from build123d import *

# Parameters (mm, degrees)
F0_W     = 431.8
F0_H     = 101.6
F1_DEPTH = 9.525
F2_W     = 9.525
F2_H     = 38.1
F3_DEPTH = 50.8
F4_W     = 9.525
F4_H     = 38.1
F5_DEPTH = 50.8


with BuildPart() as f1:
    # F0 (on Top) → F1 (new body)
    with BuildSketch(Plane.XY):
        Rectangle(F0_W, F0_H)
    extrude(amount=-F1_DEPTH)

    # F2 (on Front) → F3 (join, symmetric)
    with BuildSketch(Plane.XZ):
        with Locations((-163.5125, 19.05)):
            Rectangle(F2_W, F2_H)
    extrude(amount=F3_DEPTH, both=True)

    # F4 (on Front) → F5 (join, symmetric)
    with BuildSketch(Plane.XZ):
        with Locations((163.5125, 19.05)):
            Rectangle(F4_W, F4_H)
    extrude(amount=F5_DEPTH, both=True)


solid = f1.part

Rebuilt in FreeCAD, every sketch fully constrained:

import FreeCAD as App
import Part
import Sketcher
from FreeCAD import Vector
Q = App.Units.Quantity


def add_polygon(sketch, points):
    """Adds a closed chain of lines whose ends are joined by coincident constraints."""
    first, n = sketch.GeometryCount, len(points)
    for a, b in zip(points, points[1:] + points[:1]):
        sketch.addGeometry(Part.LineSegment(App.Vector(*a, 0), App.Vector(*b, 0)), False)
    for i in range(n):
        sketch.addConstraint(Sketcher.Constraint("Coincident", first + i, 2, first + (i + 1) % n, 1))

doc = App.newDocument("Part")
body = doc.addObject("PartDesign::Body", "Body")

sketch1 = body.newObject("Sketcher::SketchObject", "Sketch")
sketch1.AttachmentSupport = (doc.getObject("XY_Plane"), [""])
sketch1.MapMode = "FlatFace"
add_polygon(sketch1, [(-215.9, 50.8), (-215.9, -50.8), (215.9, -50.8), (215.9, 50.8)])
sketch1.addConstraint(Sketcher.Constraint("Vertical", 0))
sketch1.addConstraint(Sketcher.Constraint("Horizontal", 1))
sketch1.addConstraint(Sketcher.Constraint("Vertical", 2))
sketch1.addConstraint(Sketcher.Constraint("Horizontal", 3))
sketch1.addConstraint(Sketcher.Constraint("Symmetric", 0, 2, 2, 2, -1, 1))
sketch1.addConstraint(Sketcher.Constraint("DistanceX", 1, 1, 1, 2, Q("17 in")))
sketch1.addConstraint(Sketcher.Constraint("DistanceY", 0, 2, 0, 1, Q("4 in")))
pad1 = body.newObject("PartDesign::Pad", "Pad")
pad1.Profile = sketch1
pad1.Length = Q("0.375 in")
pad1.Reversed = True

sketch2 = body.newObject("Sketcher::SketchObject", "Sketch001")
sketch2.AttachmentSupport = (doc.getObject("XZ_Plane"), [""])
sketch2.MapMode = "FlatFace"
add_polygon(sketch2, [(-168.275, 38.1), (-168.275, 0), (-158.75, 0), (-158.75, 38.1)])
sketch2.addConstraint(Sketcher.Constraint("Vertical", 0))
sketch2.addConstraint(Sketcher.Constraint("Horizontal", 1))
sketch2.addConstraint(Sketcher.Constraint("Vertical", 2))
sketch2.addConstraint(Sketcher.Constraint("Horizontal", 3))
sketch2.addConstraint(Sketcher.Constraint("PointOnObject", 0, 2, -1))
sketch2.addConstraint(Sketcher.Constraint("DistanceY", 0, 2, 0, 1, Q("1.5 in")))
sketch2.addConstraint(Sketcher.Constraint("DistanceX", 1, 1, 1, 2, Q("0.375 in")))
sketch2.addConstraint(Sketcher.Constraint("DistanceX", 1, 2, -1, 1, Q("6.25 in")))
pad2 = body.newObject("PartDesign::Pad", "Pad001")
pad2.Profile = sketch2
pad2.Length = Q("4 in")
pad2.Midplane = True

sketch3 = body.newObject("Sketcher::SketchObject", "Sketch002")
sketch3.AttachmentSupport = (doc.getObject("XZ_Plane"), [""])
sketch3.MapMode = "FlatFace"
add_polygon(sketch3, [(158.75, 38.1), (158.75, 0), (168.275, 0), (168.275, 38.1)])
sketch3.addConstraint(Sketcher.Constraint("Vertical", 0))
sketch3.addConstraint(Sketcher.Constraint("Horizontal", 1))
sketch3.addConstraint(Sketcher.Constraint("Vertical", 2))
sketch3.addConstraint(Sketcher.Constraint("Horizontal", 3))
sketch3.addConstraint(Sketcher.Constraint("PointOnObject", 0, 2, -1))
sketch3.addConstraint(Sketcher.Constraint("DistanceY", 0, 2, 0, 1, Q("1.5 in")))
sketch3.addConstraint(Sketcher.Constraint("DistanceX", 1, 1, 1, 2, Q("0.375 in")))
sketch3.addConstraint(Sketcher.Constraint("DistanceX", -1, 1, 0, 2, Q("6.25 in")))
pad3 = body.newObject("PartDesign::Pad", "Pad002")
pad3.Profile = sketch3
pad3.Length = Q("4 in")
pad3.Midplane = True

doc.recompute()
